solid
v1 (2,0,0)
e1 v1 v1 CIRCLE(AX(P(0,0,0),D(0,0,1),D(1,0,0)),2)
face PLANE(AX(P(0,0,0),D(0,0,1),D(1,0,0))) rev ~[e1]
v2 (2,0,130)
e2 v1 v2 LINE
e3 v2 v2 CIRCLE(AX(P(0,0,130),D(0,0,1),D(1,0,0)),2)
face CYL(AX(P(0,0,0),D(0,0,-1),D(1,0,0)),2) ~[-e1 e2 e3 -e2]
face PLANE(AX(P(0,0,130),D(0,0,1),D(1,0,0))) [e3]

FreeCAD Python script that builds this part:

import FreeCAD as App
import Part
import Sketcher

V = App.Vector
Q = App.Units.Quantity

doc = App.newDocument("Part")
body = doc.addObject("PartDesign::Body", "Body")

sketch1 = doc.addObject("Sketcher::SketchObject", "Sketch")
body.addObject(sketch1)
sketch1.AttachmentSupport = (doc.XY_Plane, [""])
sketch1.MapMode = "FlatFace"
sketch1.addGeometry(Part.Circle(V(0, 0, 0), V(0, 0, 1), 2), False)
sketch1.addConstraint(Sketcher.Constraint("Coincident", 0, 3, -1, 1))
sketch1.addConstraint(Sketcher.Constraint("Diameter", 0, Q("4 mm")))
pad1 = doc.addObject("PartDesign::Pad", "Pad")
body.addObject(pad1)
pad1.Profile = sketch1
pad1.Length = 130

doc.recompute()
